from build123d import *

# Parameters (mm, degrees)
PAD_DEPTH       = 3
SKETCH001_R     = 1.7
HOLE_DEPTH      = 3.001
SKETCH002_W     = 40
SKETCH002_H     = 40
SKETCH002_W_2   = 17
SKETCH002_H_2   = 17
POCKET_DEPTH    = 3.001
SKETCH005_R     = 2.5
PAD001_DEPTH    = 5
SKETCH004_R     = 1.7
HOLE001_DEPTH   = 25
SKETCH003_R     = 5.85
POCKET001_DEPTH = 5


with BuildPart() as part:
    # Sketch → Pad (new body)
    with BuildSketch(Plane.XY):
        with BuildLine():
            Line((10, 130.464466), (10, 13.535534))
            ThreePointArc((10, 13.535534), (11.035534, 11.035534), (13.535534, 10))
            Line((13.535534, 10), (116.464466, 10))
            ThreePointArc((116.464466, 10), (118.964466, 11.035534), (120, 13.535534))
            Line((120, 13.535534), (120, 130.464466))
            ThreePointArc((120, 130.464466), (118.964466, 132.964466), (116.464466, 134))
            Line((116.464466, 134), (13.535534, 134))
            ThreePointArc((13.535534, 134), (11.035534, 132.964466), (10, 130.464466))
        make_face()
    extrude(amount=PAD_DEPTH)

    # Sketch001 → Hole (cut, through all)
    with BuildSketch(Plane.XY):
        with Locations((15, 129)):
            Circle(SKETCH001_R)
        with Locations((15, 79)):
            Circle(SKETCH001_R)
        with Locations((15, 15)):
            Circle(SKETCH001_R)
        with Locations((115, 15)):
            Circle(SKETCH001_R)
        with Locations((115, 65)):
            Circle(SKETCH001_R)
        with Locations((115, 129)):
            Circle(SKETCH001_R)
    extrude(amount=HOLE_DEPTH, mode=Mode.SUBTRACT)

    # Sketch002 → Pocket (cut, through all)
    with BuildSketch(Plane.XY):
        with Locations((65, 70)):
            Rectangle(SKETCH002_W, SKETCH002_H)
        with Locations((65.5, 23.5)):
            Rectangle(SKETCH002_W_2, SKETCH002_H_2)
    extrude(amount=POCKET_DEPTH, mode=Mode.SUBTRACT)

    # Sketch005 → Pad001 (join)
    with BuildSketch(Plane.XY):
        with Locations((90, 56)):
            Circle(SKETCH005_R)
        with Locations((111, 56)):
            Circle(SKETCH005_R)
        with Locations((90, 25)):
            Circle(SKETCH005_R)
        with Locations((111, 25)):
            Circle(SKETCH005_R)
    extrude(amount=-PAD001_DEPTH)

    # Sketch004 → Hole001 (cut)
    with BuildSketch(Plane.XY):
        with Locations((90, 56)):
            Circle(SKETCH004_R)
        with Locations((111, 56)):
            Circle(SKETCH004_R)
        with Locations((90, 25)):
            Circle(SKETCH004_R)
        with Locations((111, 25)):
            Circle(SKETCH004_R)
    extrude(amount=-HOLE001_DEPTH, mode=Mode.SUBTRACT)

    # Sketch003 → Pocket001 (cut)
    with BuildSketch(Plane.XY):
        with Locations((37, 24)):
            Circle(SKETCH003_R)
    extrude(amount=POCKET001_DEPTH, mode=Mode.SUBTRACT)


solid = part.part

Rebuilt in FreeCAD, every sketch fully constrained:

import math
import FreeCAD as App
import Part
import Sketcher

V = App.Vector
Q = App.Units.Quantity

doc = App.newDocument("Part")
body = doc.addObject("PartDesign::Body", "Body")

sketch1 = doc.addObject("Sketcher::SketchObject", "Sketch")
body.addObject(sketch1)
sketch1.AttachmentSupport = (doc.XY_Plane, [""])
sketch1.MapMode = "FlatFace"
sketch1.addGeometry(Part.LineSegment(V(10, 130.5, 0), V(10, 13.5, 0)), False)
sketch1.addGeometry(Part.ArcOfCircle(Part.Circle(V(13.5, 13.5, 0), V(0, 0, 1), 3.5), math.radians(-180), math.radians(-90)), False)
sketch1.addGeometry(Part.LineSegment(V(13.5, 10, 0), V(116.5, 10, 0)), False)
sketch1.addGeometry(Part.ArcOfCircle(Part.Circle(V(116.5, 13.5, 0), V(0, 0, 1), 3.5), math.radians(-90), math.radians(0)), False)
sketch1.addGeometry(Part.LineSegment(V(120, 13.5, 0), V(120, 130.5, 0)), False)
sketch1.addGeometry(Part.ArcOfCircle(Part.Circle(V(116.5, 130.5, 0), V(0, 0, 1), 3.5), math.radians(0), math.radians(90)), False)
sketch1.addGeometry(Part.LineSegment(V(116.5, 134, 0), V(13.5, 134, 0)), False)
sketch1.addGeometry(Part.ArcOfCircle(Part.Circle(V(13.5, 130.5, 0), V(0, 0, 1), 3.5), math.radians(90), math.radians(180)), False)
sketch1.addConstraint(Sketcher.Constraint("Tangent", 0, 2, 1, 1))
sketch1.addConstraint(Sketcher.Constraint("Tangent", 1, 2, 2, 1))
sketch1.addConstraint(Sketcher.Constraint("Tangent", 2, 2, 3, 1))
sketch1.addConstraint(Sketcher.Constraint("Tangent", 3, 2, 4, 1))
sketch1.addConstraint(Sketcher.Constraint("Tangent", 4, 2, 5, 1))
sketch1.addConstraint(Sketcher.Constraint("Tangent", 5, 2, 6, 1))
sketch1.addConstraint(Sketcher.Constraint("Tangent", 6, 2, 7, 1))
sketch1.addConstraint(Sketcher.Constraint("Tangent", 7, 2, 0, 1))
sketch1.addConstraint(Sketcher.Constraint("Vertical", 0))
sketch1.addConstraint(Sketcher.Constraint("Horizontal", 2))
sketch1.addConstraint(Sketcher.Constraint("Vertical", 4))
sketch1.addConstraint(Sketcher.Constraint("Horizontal", 6))
sketch1.addConstraint(Sketcher.Constraint("Equal", 1, 3))
sketch1.addConstraint(Sketcher.Constraint("Equal", 3, 5))
sketch1.addConstraint(Sketcher.Constraint("Equal", 5, 7))
sketch1.addConstraint(Sketcher.Constraint("DistanceX", -1, 1, 0, 2, Q("10 mm")))
sketch1.addConstraint(Sketcher.Constraint("DistanceY", -1, 1, 1, 2, Q("10 mm")))
sketch1.addConstraint(Sketcher.Constraint("DistanceX", -1, 1, 3, 2, Q("120 mm")))
sketch1.addConstraint(Sketcher.Constraint("DistanceY", -1, 1, 5, 2, Q("134 mm")))
sketch1.addConstraint(Sketcher.Constraint("Radius", 1, Q("3.535534 mm")))
pad1 = doc.addObject("PartDesign::Pad", "Pad")
body.addObject(pad1)
pad1.Profile = sketch1
pad1.Length = 3

sketch2 = doc.addObject("Sketcher::SketchObject", "Sketch001")
body.addObject(sketch2)
sketch2.AttachmentSupport = (doc.XY_Plane, [""])
sketch2.MapMode = "FlatFace"
sketch2.addGeometry(Part.Circle(V(15, 129, 0), V(0, 0, 1), 1.7), False)
sketch2.addGeometry(Part.Circle(V(15, 79, 0), V(0, 0, 1), 1.7), False)
sketch2.addGeometry(Part.Circle(V(15, 15, 0), V(0, 0, 1), 1.7), False)
sketch2.addGeometry(Part.Circle(V(115, 15, 0), V(0, 0, 1), 1.7), False)
sketch2.addGeometry(Part.Circle(V(115, 65, 0), V(0, 0, 1), 1.7), False)
sketch2.addGeometry(Part.Circle(V(115, 129, 0), V(0, 0, 1), 1.7), False)
sketch2.addConstraint(Sketcher.Constraint("Equal", 0, 1))
sketch2.addConstraint(Sketcher.Constraint("Equal", 1, 2))
sketch2.addConstraint(Sketcher.Constraint("Equal", 2, 3))
sketch2.addConstraint(Sketcher.Constraint("Equal", 3, 4))
sketch2.addConstraint(Sketcher.Constraint("Equal", 4, 5))
sketch2.addConstraint(Sketcher.Constraint("Horizontal", 2, 3, 3, 3))
sketch2.addConstraint(Sketcher.Constraint("Horizontal", 0, 3, 5, 3))
sketch2.addConstraint(Sketcher.Constraint("Vertical", 0, 3, 1, 3))
sketch2.addConstraint(Sketcher.Constraint("Vertical", 1, 3, 2, 3))
sketch2.addConstraint(Sketcher.Constraint("Vertical", 3, 3, 4, 3))
sketch2.addConstraint(Sketcher.Constraint("Vertical", 4, 3, 5, 3))
sketch2.addConstraint(Sketcher.Constraint("Diameter", 0, Q("3.4 mm")))
sketch2.addConstraint(Sketcher.Constraint("DistanceX", -1, 1, 0, 3, Q("15 mm")))
sketch2.addConstraint(Sketcher.Constraint("DistanceY", -1, 1, 0, 3, Q("129 mm")))
sketch2.addConstraint(Sketcher.Constraint("DistanceY", -1, 1, 1, 3, Q("79 mm")))
sketch2.addConstraint(Sketcher.Constraint("DistanceY", -1, 1, 2, 3, Q("15 mm")))
sketch2.addConstraint(Sketcher.Constraint("DistanceX", -1, 1, 3, 3, Q("115 mm")))
sketch2.addConstraint(Sketcher.Constraint("DistanceY", -1, 1, 4, 3, Q("65 mm")))
pocket1 = doc.addObject("PartDesign::Pocket", "Pocket")
body.addObject(pocket1)
pocket1.Profile = sketch2
pocket1.Type = "ThroughAll"
pocket1.Reversed = True

sketch3 = doc.addObject("Sketcher::SketchObject", "Sketch002")
body.addObject(sketch3)
sketch3.AttachmentSupport = (doc.XY_Plane, [""])
sketch3.MapMode = "FlatFace"
sketch3.addGeometry(Part.LineSegment(V(45, 90, 0), V(45, 50, 0)), False)
sketch3.addGeometry(Part.LineSegment(V(45, 50, 0), V(85, 50, 0)), False)
sketch3.addGeometry(Part.LineSegment(V(85, 50, 0), V(85, 90, 0)), False)
sketch3.addGeometry(Part.LineSegment(V(85, 90, 0), V(45, 90, 0)), False)
sketch3.addGeometry(Part.LineSegment(V(57, 32, 0), V(57, 15, 0)), False)
sketch3.addGeometry(Part.LineSegment(V(57, 15, 0), V(74, 15, 0)), False)
sketch3.addGeometry(Part.LineSegment(V(74, 15, 0), V(74, 32, 0)), False)
sketch3.addGeometry(Part.LineSegment(V(74, 32, 0), V(57, 32, 0)), False)
sketch3.addConstraint(Sketcher.Constraint("Coincident", 0, 2, 1, 1))
sketch3.addConstraint(Sketcher.Constraint("Coincident", 1, 2, 2, 1))
sketch3.addConstraint(Sketcher.Constraint("Coincident", 2, 2, 3, 1))
sketch3.addConstraint(Sketcher.Constraint("Coincident", 3, 2, 0, 1))
sketch3.addConstraint(Sketcher.Constraint("Coincident", 4, 2, 5, 1))
sketch3.addConstraint(Sketcher.Constraint("Coincident", 5, 2, 6, 1))
sketch3.addConstraint(Sketcher.Constraint("Coincident", 6, 2, 7, 1))
sketch3.addConstraint(Sketcher.Constraint("Coincident", 7, 2, 4, 1))
sketch3.addConstraint(Sketcher.Constraint("Vertical", 0))
sketch3.addConstraint(Sketcher.Constraint("Horizontal", 1))
sketch3.addConstraint(Sketcher.Constraint("Vertical", 2))
sketch3.addConstraint(Sketcher.Constraint("Horizontal", 3))
sketch3.addConstraint(Sketcher.Constraint("Vertical", 4))
sketch3.addConstraint(Sketcher.Constraint("Horizontal", 5))
sketch3.addConstraint(Sketcher.Constraint("Vertical", 6))
sketch3.addConstraint(Sketcher.Constraint("Horizontal", 7))
sketch3.addConstraint(Sketcher.Constraint("Equal", 3, 0))
sketch3.addConstraint(Sketcher.Constraint("Equal", 7, 4))
sketch3.addConstraint(Sketcher.Constraint("DistanceX", 1, 1, 1, 2, Q("40 mm")))
sketch3.addConstraint(Sketcher.Constraint("DistanceX", 5, 1, 5, 2, Q("17 mm")))
sketch3.addConstraint(Sketcher.Constraint("DistanceX", -1, 1, 0, 2, Q("45 mm")))
sketch3.addConstraint(Sketcher.Constraint("DistanceY", -1, 1, 0, 2, Q("50 mm")))
sketch3.addConstraint(Sketcher.Constraint("DistanceX", -1, 1, 4, 2, Q("57 mm")))
sketch3.addConstraint(Sketcher.Constraint("DistanceY", -1, 1, 4, 2, Q("15 mm")))
pocket2 = doc.addObject("PartDesign::Pocket", "Pocket001")
body.addObject(pocket2)
pocket2.Profile = sketch3
pocket2.Type = "ThroughAll"
pocket2.Reversed = True

sketch4 = doc.addObject("Sketcher::SketchObject", "Sketch003")
body.addObject(sketch4)
sketch4.AttachmentSupport = (doc.XY_Plane, [""])
sketch4.MapMode = "FlatFace"
sketch4.addGeometry(Part.Circle(V(90, 56, 0), V(0, 0, 1), 2.5), False)
sketch4.addGeometry(Part.Circle(V(111, 56, 0), V(0, 0, 1), 2.5), False)
sketch4.addGeometry(Part.Circle(V(90, 25, 0), V(0, 0, 1), 2.5), False)
sketch4.addGeometry(Part.Circle(V(111, 25, 0), V(0, 0, 1), 2.5), False)
sketch4.addConstraint(Sketcher.Constraint("Equal", 0, 1))
sketch4.addConstraint(Sketcher.Constraint("Equal", 1, 2))
sketch4.addConstraint(Sketcher.Constraint("Equal", 2, 3))
sketch4.addConstraint(Sketcher.Constraint("Horizontal", 0, 3, 1, 3))
sketch4.addConstraint(Sketcher.Constraint("Horizontal", 2, 3, 3, 3))
sketch4.addConstraint(Sketcher.Constraint("Vertical", 0, 3, 2, 3))
sketch4.addConstraint(Sketcher.Constraint("Vertical", 1, 3, 3, 3))
sketch4.addConstraint(Sketcher.Constraint("Diameter", 0, Q("5 mm")))
sketch4.addConstraint(Sketcher.Constraint("DistanceX", -1, 1, 0, 3, Q("90 mm")))
sketch4.addConstraint(Sketcher.Constraint("DistanceY", -1, 1, 0, 3, Q("56 mm")))
sketch4.addConstraint(Sketcher.Constraint("DistanceX", -1, 1, 1, 3, Q("111 mm")))
sketch4.addConstraint(Sketcher.Constraint("DistanceY", -1, 1, 2, 3, Q("25 mm")))
pad2 = doc.addObject("PartDesign::Pad", "Pad001")
body.addObject(pad2)
pad2.Profile = sketch4
pad2.Length = 5
pad2.Reversed = True

sketch5 = doc.addObject("Sketcher::SketchObject", "Sketch004")
body.addObject(sketch5)
sketch5.AttachmentSupport = (doc.XY_Plane, [""])
sketch5.MapMode = "FlatFace"
sketch5.addGeometry(Part.Circle(V(90, 56, 0), V(0, 0, 1), 1.7), False)
sketch5.addGeometry(Part.Circle(V(111, 56, 0), V(0, 0, 1), 1.7), False)
sketch5.addGeometry(Part.Circle(V(90, 25, 0), V(0, 0, 1), 1.7), False)
sketch5.addGeometry(Part.Circle(V(111, 25, 0), V(0, 0, 1), 1.7), False)
sketch5.addConstraint(Sketcher.Constraint("Equal", 0, 1))
sketch5.addConstraint(Sketcher.Constraint("Equal", 1, 2))
sketch5.addConstraint(Sketcher.Constraint("Equal", 2, 3))
sketch5.addConstraint(Sketcher.Constraint("Horizontal", 0, 3, 1, 3))
sketch5.addConstraint(Sketcher.Constraint("Horizontal", 2, 3, 3, 3))
sketch5.addConstraint(Sketcher.Constraint("Vertical", 0, 3, 2, 3))
sketch5.addConstraint(Sketcher.Constraint("Vertical", 1, 3, 3, 3))
sketch5.addConstraint(Sketcher.Constraint("Diameter", 0, Q("3.4 mm")))
sketch5.addConstraint(Sketcher.Constraint("DistanceX", -1, 1, 0, 3, Q("90 mm")))
sketch5.addConstraint(Sketcher.Constraint("DistanceY", -1, 1, 0, 3, Q("56 mm")))
sketch5.addConstraint(Sketcher.Constraint("DistanceX", -1, 1, 1, 3, Q("111 mm")))
sketch5.addConstraint(Sketcher.Constraint("DistanceY", -1, 1, 2, 3, Q("25 mm")))
pocket3 = doc.addObject("PartDesign::Pocket", "Pocket002")
body.addObject(pocket3)
pocket3.Profile = sketch5
pocket3.Length = 25

sketch6 = doc.addObject("Sketcher::SketchObject", "Sketch005")
body.addObject(sketch6)
sketch6.AttachmentSupport = (doc.XY_Plane, [""])
sketch6.MapMode = "FlatFace"
sketch6.addGeometry(Part.Circle(V(37, 24, 0), V(0, 0, 1), 6), False)
sketch6.addConstraint(Sketcher.Constraint("Diameter", 0, Q("11.7 mm")))
sketch6.addConstraint(Sketcher.Constraint("DistanceX", -1, 1, 0, 3, Q("37 mm")))
sketch6.addConstraint(Sketcher.Constraint("DistanceY", -1, 1, 0, 3, Q("24 mm")))
pocket4 = doc.addObject("PartDesign::Pocket", "Pocket003")
body.addObject(pocket4)
pocket4.Profile = sketch6
pocket4.Length = 5
pocket4.Reversed = True

doc.recompute()
